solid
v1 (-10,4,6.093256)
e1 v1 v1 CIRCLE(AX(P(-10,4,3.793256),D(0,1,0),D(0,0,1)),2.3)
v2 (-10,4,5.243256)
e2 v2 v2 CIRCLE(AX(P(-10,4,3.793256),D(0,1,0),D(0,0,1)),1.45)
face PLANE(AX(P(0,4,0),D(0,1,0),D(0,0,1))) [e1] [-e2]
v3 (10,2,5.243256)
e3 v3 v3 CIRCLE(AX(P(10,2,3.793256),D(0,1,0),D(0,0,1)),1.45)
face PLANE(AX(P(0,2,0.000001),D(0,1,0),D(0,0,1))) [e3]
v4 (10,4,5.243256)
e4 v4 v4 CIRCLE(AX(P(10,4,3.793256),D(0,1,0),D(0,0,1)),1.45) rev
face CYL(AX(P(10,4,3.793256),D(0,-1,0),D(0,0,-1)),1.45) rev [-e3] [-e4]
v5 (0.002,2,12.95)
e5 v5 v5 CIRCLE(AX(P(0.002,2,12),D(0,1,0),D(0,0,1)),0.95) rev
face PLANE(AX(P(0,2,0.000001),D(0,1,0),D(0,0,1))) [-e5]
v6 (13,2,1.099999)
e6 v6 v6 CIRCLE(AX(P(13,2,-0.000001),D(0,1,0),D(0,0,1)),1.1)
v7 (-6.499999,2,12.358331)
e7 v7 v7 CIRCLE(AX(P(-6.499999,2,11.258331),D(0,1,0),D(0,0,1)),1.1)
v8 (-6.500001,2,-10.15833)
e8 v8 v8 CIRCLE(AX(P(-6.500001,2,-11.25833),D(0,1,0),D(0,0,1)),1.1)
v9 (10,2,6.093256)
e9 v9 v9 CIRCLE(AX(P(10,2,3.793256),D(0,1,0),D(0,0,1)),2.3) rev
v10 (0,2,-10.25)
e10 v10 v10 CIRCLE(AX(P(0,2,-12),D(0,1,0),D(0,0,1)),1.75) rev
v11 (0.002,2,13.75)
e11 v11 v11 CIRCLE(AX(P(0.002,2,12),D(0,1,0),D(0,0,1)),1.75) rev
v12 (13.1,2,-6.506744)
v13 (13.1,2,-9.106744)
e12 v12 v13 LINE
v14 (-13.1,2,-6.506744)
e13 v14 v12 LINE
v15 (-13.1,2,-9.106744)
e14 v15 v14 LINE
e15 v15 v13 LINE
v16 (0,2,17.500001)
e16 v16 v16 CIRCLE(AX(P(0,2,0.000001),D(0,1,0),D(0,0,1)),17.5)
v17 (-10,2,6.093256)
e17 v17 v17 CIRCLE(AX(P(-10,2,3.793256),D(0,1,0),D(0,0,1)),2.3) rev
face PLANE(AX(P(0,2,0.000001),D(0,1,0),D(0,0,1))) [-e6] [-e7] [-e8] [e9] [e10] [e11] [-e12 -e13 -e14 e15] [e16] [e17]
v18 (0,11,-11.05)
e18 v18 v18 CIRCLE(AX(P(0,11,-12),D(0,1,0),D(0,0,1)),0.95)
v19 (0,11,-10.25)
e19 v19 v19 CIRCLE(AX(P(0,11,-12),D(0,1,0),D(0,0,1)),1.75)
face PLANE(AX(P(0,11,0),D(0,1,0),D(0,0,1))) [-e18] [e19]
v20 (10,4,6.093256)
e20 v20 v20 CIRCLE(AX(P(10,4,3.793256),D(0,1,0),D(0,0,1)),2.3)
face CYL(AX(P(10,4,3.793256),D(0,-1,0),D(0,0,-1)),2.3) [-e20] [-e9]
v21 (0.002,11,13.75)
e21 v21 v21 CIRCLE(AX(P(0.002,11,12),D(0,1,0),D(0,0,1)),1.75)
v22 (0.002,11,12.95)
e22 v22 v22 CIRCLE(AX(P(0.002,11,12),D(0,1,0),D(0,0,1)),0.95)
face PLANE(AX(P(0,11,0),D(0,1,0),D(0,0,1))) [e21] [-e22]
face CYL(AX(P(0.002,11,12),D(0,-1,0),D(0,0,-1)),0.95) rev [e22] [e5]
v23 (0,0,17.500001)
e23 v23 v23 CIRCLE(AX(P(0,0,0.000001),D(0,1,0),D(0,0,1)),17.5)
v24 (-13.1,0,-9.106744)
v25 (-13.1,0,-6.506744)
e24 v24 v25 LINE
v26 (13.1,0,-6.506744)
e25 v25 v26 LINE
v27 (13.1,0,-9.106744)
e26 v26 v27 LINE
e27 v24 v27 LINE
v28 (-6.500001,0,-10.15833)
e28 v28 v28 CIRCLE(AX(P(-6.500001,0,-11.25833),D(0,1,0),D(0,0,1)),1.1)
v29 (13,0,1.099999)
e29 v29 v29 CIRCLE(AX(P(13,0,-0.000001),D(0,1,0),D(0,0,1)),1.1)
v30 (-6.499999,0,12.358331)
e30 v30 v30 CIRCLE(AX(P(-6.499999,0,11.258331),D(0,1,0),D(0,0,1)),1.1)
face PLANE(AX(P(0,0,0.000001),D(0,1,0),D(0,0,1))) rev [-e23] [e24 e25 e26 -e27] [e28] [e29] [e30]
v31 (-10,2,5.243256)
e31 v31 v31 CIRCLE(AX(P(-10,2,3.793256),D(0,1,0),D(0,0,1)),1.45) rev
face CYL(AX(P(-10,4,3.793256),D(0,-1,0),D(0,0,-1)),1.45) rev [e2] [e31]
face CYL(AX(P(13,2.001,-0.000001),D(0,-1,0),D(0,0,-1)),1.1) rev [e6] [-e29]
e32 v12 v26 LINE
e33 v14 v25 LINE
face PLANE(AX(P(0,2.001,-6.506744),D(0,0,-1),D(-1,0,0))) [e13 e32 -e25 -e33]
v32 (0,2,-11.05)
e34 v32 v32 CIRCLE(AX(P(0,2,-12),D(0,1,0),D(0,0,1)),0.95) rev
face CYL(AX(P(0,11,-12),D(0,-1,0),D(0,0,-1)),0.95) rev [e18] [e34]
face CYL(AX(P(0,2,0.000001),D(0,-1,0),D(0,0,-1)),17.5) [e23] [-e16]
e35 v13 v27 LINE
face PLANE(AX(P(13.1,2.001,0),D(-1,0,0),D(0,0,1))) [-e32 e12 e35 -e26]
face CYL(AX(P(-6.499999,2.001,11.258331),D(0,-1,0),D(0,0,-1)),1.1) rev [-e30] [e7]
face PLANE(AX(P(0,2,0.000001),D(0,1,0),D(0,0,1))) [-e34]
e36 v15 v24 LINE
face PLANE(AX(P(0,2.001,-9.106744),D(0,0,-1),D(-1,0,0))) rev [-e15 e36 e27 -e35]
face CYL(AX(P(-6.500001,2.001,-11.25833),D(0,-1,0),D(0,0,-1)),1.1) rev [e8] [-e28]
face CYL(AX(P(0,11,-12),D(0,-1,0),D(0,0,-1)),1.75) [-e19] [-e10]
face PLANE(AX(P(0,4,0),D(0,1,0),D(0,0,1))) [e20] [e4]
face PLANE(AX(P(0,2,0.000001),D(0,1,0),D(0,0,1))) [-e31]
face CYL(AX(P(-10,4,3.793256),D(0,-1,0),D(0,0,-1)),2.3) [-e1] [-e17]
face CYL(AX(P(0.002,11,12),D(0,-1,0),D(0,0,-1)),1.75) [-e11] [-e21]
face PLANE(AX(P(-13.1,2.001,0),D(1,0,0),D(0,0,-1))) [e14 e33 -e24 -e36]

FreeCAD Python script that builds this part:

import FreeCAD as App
import Part
import Sketcher

V = App.Vector

doc = App.newDocument("Part")
body = doc.addObject("PartDesign::Body", "Body")

sketch1 = doc.addObject("Sketcher::SketchObject", "Sketch")
body.addObject(sketch1)
sketch1.AttachmentSupport = (doc.XZ_Plane, [""])
sketch1.MapMode = "FlatFace"
sketch1.addGeometry(Part.Circle(V(0, 0, 0), V(0, 0, 1), 18), False)
sketch1.addConstraint(Sketcher.Constraint("Coincident", 0, 3, -1, 1))
sketch1.addConstraint(Sketcher.Constraint("Diameter", 0, 35.0))
pad1 = doc.addObject("PartDesign::Pad", "Pad")
body.addObject(pad1)
pad1.Profile = sketch1
pad1.Length = 2
pad1.Reversed = True

sketch2 = doc.addObject("Sketcher::SketchObject", "Sketch001")
body.addObject(sketch2)
sketch2.AttachmentSupport = (doc.XZ_Plane, [""])
sketch2.MapMode = "FlatFace"
sketch2.addGeometry(Part.LineSegment(V(-13.1, -9.1, 0), V(-13.1, -6.5, 0)), False)
sketch2.addGeometry(Part.LineSegment(V(-13.1, -6.5, 0), V(13.1, -6.5, 0)), False)
sketch2.addGeometry(Part.LineSegment(V(13.1, -6.5, 0), V(13.1, -9.1, 0)), False)
sketch2.addGeometry(Part.LineSegment(V(13.1, -9.1, 0), V(-13.1, -9.1, 0)), False)
sketch2.addConstraint(Sketcher.Constraint("Coincident", 0, 2, 1, 1))
sketch2.addConstraint(Sketcher.Constraint("Coincident", 1, 2, 2, 1))
sketch2.addConstraint(Sketcher.Constraint("Coincident", 2, 2, 3, 1))
sketch2.addConstraint(Sketcher.Constraint("Coincident", 3, 2, 0, 1))
sketch2.addConstraint(Sketcher.Constraint("Vertical", 0))
sketch2.addConstraint(Sketcher.Constraint("Horizontal", 1))
sketch2.addConstraint(Sketcher.Constraint("Vertical", 2))
sketch2.addConstraint(Sketcher.Constraint("Horizontal", 3))
sketch2.addConstraint(Sketcher.Constraint("DistanceX", 1, 1, 1, 2, 26.2))
sketch2.addConstraint(Sketcher.Constraint("DistanceY", 0, 1, 0, 2, 2.6))
sketch2.addConstraint(Sketcher.Constraint("DistanceX", 0, 2, -1, 1, 13.1))
sketch2.addConstraint(Sketcher.Constraint("DistanceY", 0, 2, -1, 1, 6.506744))
pocket1 = doc.addObject("PartDesign::Pocket", "Pocket")
body.addObject(pocket1)
pocket1.Profile = sketch2
pocket1.Type = "UpToFirst"

sketch3 = doc.addObject("Sketcher::SketchObject", "Sketch002")
body.addObject(sketch3)
sketch3.AttachmentSupport = (doc.XZ_Plane, [""])
sketch3.MapMode = "FlatFace"
sketch3.addGeometry(Part.Circle(V(-6.5, 11.3, 0), V(0, 0, 1), 1.1), False)
sketch3.addConstraint(Sketcher.Constraint("Diameter", 0, 2.2))
sketch3.addConstraint(Sketcher.Constraint("DistanceX", 0, 3, -1, 1, 6.499999))
sketch3.addConstraint(Sketcher.Constraint("DistanceY", -1, 1, 0, 3, 11.258331))
pocket2 = doc.addObject("PartDesign::Pocket", "Pocket001")
body.addObject(pocket2)
pocket2.Profile = sketch3
pocket2.Type = "UpToFirst"

sketch4 = doc.addObject("Sketcher::SketchObject", "Sketch003")
body.addObject(sketch4)
sketch4.AttachmentSupport = (doc.XZ_Plane, [""])
sketch4.MapMode = "FlatFace"
sketch4.addGeometry(Part.Circle(V(13, 0, 0), V(0, 0, 1), 1.1), False)
sketch4.addConstraint(Sketcher.Constraint("PointOnObject", 0, 3, -1))
sketch4.addConstraint(Sketcher.Constraint("Diameter", 0, 2.2))
sketch4.addConstraint(Sketcher.Constraint("DistanceX", -1, 1, 0, 3, 13.0))
pocket3 = doc.addObject("PartDesign::Pocket", "Pocket002")
body.addObject(pocket3)
pocket3.Profile = sketch4
pocket3.Type = "UpToFirst"

sketch5 = doc.addObject("Sketcher::SketchObject", "Sketch004")
body.addObject(sketch5)
sketch5.AttachmentSupport = (doc.XZ_Plane, [""])
sketch5.MapMode = "FlatFace"
sketch5.addGeometry(Part.Circle(V(-6.5, -11.3, 0), V(0, 0, 1), 1.1), False)
sketch5.addConstraint(Sketcher.Constraint("Diameter", 0, 2.2))
sketch5.addConstraint(Sketcher.Constraint("DistanceX", 0, 3, -1, 1, 6.500001))
sketch5.addConstraint(Sketcher.Constraint("DistanceY", 0, 3, -1, 1, 11.25833))
pocket4 = doc.addObject("PartDesign::Pocket", "Pocket003")
body.addObject(pocket4)
pocket4.Profile = sketch5
pocket4.Type = "UpToFirst"

sketch6 = doc.addObject("Sketcher::SketchObject", "Sketch005")
body.addObject(sketch6)
sketch6.AttachmentSupport = (doc.XZ_Plane, [""])
sketch6.MapMode = "FlatFace"
sketch6.addGeometry(Part.Circle(V(-10, 3.8, 0), V(0, 0, 1), 2.3), False)
sketch6.addGeometry(Part.Circle(V(-10, 3.8, 0), V(0, 0, 1), 1.4), False)
sketch6.addGeometry(Part.Circle(V(10, 3.8, 0), V(0, 0, 1), 2.3), False)
sketch6.addGeometry(Part.Circle(V(10, 3.8, 0), V(0, 0, 1), 1.4), False)
sketch6.addConstraint(Sketcher.Constraint("Coincident", 1, 3, 0, 3))
sketch6.addConstraint(Sketcher.Constraint("Coincident", 3, 3, 2, 3))
sketch6.addConstraint(Sketcher.Constraint("Equal", 0, 2))
sketch6.addConstraint(Sketcher.Constraint("Equal", 1, 3))
sketch6.addConstraint(Sketcher.Constraint("Symmetric", 0, 3, 2, 3, -2))
sketch6.addConstraint(Sketcher.Constraint("Diameter", 0, 4.6))
sketch6.addConstraint(Sketcher.Constraint("Diameter", 1, 2.9))
sketch6.addConstraint(Sketcher.Constraint("DistanceX", 0, 3, -1, 1, 10.0))
sketch6.addConstraint(Sketcher.Constraint("DistanceY", -1, 1, 0, 3, 3.793256))
pad2 = doc.addObject("PartDesign::Pad", "Pad001")
body.addObject(pad2)
pad2.Profile = sketch6
pad2.Length = 4
pad2.Reversed = True

sketch7 = doc.addObject("Sketcher::SketchObject", "Sketch006")
body.addObject(sketch7)
sketch7.AttachmentSupport = (doc.XZ_Plane, [""])
sketch7.MapMode = "FlatFace"
sketch7.addGeometry(Part.Circle(V(0, -12, 0), V(0, 0, 1), 1.8), False)
sketch7.addGeometry(Part.Circle(V(0, -12, 0), V(0, 0, 1), 0.9), False)
sketch7.addGeometry(Part.Circle(V(0, 12, 0), V(0, 0, 1), 1.8), False)
sketch7.addGeometry(Part.Circle(V(0, 12, 0), V(0, 0, 1), 0.9), False)
sketch7.addConstraint(Sketcher.Constraint("Coincident", 1, 3, 0, 3))
sketch7.addConstraint(Sketcher.Constraint("Coincident", 3, 3, 2, 3))
sketch7.addConstraint(Sketcher.Constraint("Equal", 0, 2))
sketch7.addConstraint(Sketcher.Constraint("Equal", 1, 3))
sketch7.addConstraint(Sketcher.Constraint("PointOnObject", 0, 3, -2))
sketch7.addConstraint(Sketcher.Constraint("Diameter", 0, 3.5))
sketch7.addConstraint(Sketcher.Constraint("Diameter", 1, 1.9))
sketch7.addConstraint(Sketcher.Constraint("DistanceY", 0, 3, -1, 1, 12.0))
sketch7.addConstraint(Sketcher.Constraint("DistanceY", -1, 1, 2, 3, 12.0))
sketch7.addConstraint(Sketcher.Constraint("DistanceX", -1, 1, 2, 3, 0.002))
pad3 = doc.addObject("PartDesign::Pad", "Pad002")
body.addObject(pad3)
pad3.Profile = sketch7
pad3.Length = 11
pad3.Reversed = True

doc.recompute()
